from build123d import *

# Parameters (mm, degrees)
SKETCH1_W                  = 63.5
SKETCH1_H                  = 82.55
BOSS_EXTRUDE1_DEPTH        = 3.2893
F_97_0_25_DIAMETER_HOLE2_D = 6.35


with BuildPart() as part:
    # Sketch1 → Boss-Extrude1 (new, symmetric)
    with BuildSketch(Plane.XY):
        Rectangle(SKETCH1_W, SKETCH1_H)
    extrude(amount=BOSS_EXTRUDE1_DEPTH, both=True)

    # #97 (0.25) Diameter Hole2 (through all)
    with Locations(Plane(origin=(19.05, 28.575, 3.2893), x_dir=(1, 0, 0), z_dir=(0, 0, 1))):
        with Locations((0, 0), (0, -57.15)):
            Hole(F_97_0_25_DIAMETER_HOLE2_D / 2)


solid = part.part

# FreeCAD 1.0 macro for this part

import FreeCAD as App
import Part
import Sketcher

V = App.Vector
Q = App.Units.Quantity

doc = App.newDocument("Part")
body = doc.addObject("PartDesign::Body", "Body")

# Sketch on XY plane
sketch1 = body.newObject("Sketcher::SketchObject", "Sketch")
sketch1.AttachmentSupport = (doc.getObject("XY_Plane"), [""])
sketch1.MapMode = "FlatFace"
sketch1.addGeometry([
    Part.LineSegment(V(-32, 41, 0), V(-32, -41, 0)),
    Part.LineSegment(V(-32, -41, 0), V(32, -41, 0)),
    Part.LineSegment(V(32, -41, 0), V(32, 41, 0)),
    Part.LineSegment(V(32, 41, 0), V(-32, 41, 0)),
], False)
sketch1.addConstraint([
    Sketcher.Constraint("Coincident", 0, 2, 1, 1),
    Sketcher.Constraint("Coincident", 1, 2, 2, 1),
    Sketcher.Constraint("Coincident", 2, 2, 3, 1),
    Sketcher.Constraint("Coincident", 3, 2, 0, 1),
    Sketcher.Constraint("Vertical", 0),
    Sketcher.Constraint("Horizontal", 1),
    Sketcher.Constraint("Vertical", 2),
    Sketcher.Constraint("Horizontal", 3),
    Sketcher.Constraint("Symmetric", 0, 2, 2, 2, -1, 1),
    Sketcher.Constraint("DistanceX", 1, 1, 1, 2, Q("2.5 in")),
    Sketcher.Constraint("DistanceY", 0, 2, 0, 1, Q("3.25 in")),
])
pad1 = body.newObject("PartDesign::Pad", "Pad")
pad1.Profile = sketch1
pad1.Length = Q("0.259 in")
pad1.Midplane = True

# Sketch on XY plane
sketch2 = body.newObject("Sketcher::SketchObject", "Sketch001")
sketch2.AttachmentSupport = (doc.getObject("XY_Plane"), [""])
sketch2.MapMode = "FlatFace"
sketch2.AttachmentOffset = App.Placement(V(0, 0, 0.1295 * 25.4), App.Rotation())
sketch2.addGeometry([
    Part.Circle(V(19.1, 28.6, 0), V(0, 0, 1), 3.2),
    Part.Circle(V(19.1, -28.6, 0), V(0, 0, 1), 3.2),
], False)
sketch2.addConstraint([
    Sketcher.Constraint("Equal", 0, 1),
    Sketcher.Constraint("Symmetric", 0, 3, 1, 3, -1),
    Sketcher.Constraint("Diameter", 0, Q("0.25 in")),
    Sketcher.Constraint("DistanceX", -1, 1, 0, 3, Q("0.75 in")),
    Sketcher.Constraint("DistanceY", 1, 3, 0, 3, Q("2.25 in")),
])
doc.recompute()
hole = body.newObject("PartDesign::Hole", "Hole")
hole.Profile = sketch2
hole.ThreadType = "None"
hole.Diameter = Q("0.25 in")
hole.DepthType = "ThroughAll"

doc.recompute()
